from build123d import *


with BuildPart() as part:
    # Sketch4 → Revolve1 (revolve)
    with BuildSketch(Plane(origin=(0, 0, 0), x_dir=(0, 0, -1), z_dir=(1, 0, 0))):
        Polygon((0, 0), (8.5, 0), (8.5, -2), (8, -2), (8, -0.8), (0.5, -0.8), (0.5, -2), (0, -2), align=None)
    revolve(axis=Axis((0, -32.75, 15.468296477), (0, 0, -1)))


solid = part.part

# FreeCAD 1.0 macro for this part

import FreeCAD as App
import Part
import Sketcher


def add_polygon(sketch, points):
    """Adds a closed chain of lines whose ends are joined by coincident constraints."""
    first, n = sketch.GeometryCount, len(points)
    for a, b in zip(points, points[1:] + points[:1]):
        sketch.addGeometry(Part.LineSegment(App.Vector(*a, 0), App.Vector(*b, 0)), False)
    for i in range(n):
        sketch.addConstraint(Sketcher.Constraint("Coincident", first + i, 2, first + (i + 1) % n, 1))

doc = App.newDocument("Part")
body = doc.addObject("PartDesign::Body", "Body")

sketch1 = body.newObject("Sketcher::SketchObject", "Sketch")
sketch1.AttachmentSupport = (doc.getObject("YZ_Plane"), [""])
sketch1.MapMode = "FlatFace"
add_polygon(sketch1, [(0, -8.5), (0, 0), (-2, 0), (-2, -0.5), (-0.8, -0.5), (-0.8, -8), (-2, -8), (-2, -8.5)])
sketch1.addGeometry(Part.LineSegment(App.Vector(-32.75, 0, 0), App.Vector(-32.75, -8.5, 0)), True)
sketch1.addConstraint([
    Sketcher.Constraint("Vertical", 0),
    Sketcher.Constraint("Horizontal", 1),
    Sketcher.Constraint("Vertical", 2),
    Sketcher.Constraint("Horizontal", 3),
    Sketcher.Constraint("Vertical", 4),
    Sketcher.Constraint("Horizontal", 5),
    Sketcher.Constraint("Vertical", 6),
    Sketcher.Constraint("Horizontal", 7),
    Sketcher.Constraint("Vertical", 8),
    Sketcher.Constraint("Coincident", 0, 2, -1, 1),
    Sketcher.Constraint("PointOnObject", 8, 1, -1),
    Sketcher.Constraint("Horizontal", 7, 2, 8, 2),
    Sketcher.Constraint("Vertical", 2, 2, 5, 2),
    Sketcher.Constraint("Equal", 2, 6),
    Sketcher.Constraint("DistanceX", 1, 2, 1, 1, 2.0),
    Sketcher.Constraint("DistanceX", 3, 1, 3, 2, 1.2),
    Sketcher.Constraint("DistanceY", 0, 1, 0, 2, 8.5),
    Sketcher.Constraint("DistanceY", 2, 2, 2, 1, 0.5),
    Sketcher.Constraint("DistanceX", 8, 1, -1, 1, 32.75),
])
revolution = body.newObject("PartDesign::Revolution", "Revolution")
revolution.Profile = sketch1
revolution.ReferenceAxis = (sketch1, ["Axis0"])
revolution.Angle = 360

doc.recompute()
